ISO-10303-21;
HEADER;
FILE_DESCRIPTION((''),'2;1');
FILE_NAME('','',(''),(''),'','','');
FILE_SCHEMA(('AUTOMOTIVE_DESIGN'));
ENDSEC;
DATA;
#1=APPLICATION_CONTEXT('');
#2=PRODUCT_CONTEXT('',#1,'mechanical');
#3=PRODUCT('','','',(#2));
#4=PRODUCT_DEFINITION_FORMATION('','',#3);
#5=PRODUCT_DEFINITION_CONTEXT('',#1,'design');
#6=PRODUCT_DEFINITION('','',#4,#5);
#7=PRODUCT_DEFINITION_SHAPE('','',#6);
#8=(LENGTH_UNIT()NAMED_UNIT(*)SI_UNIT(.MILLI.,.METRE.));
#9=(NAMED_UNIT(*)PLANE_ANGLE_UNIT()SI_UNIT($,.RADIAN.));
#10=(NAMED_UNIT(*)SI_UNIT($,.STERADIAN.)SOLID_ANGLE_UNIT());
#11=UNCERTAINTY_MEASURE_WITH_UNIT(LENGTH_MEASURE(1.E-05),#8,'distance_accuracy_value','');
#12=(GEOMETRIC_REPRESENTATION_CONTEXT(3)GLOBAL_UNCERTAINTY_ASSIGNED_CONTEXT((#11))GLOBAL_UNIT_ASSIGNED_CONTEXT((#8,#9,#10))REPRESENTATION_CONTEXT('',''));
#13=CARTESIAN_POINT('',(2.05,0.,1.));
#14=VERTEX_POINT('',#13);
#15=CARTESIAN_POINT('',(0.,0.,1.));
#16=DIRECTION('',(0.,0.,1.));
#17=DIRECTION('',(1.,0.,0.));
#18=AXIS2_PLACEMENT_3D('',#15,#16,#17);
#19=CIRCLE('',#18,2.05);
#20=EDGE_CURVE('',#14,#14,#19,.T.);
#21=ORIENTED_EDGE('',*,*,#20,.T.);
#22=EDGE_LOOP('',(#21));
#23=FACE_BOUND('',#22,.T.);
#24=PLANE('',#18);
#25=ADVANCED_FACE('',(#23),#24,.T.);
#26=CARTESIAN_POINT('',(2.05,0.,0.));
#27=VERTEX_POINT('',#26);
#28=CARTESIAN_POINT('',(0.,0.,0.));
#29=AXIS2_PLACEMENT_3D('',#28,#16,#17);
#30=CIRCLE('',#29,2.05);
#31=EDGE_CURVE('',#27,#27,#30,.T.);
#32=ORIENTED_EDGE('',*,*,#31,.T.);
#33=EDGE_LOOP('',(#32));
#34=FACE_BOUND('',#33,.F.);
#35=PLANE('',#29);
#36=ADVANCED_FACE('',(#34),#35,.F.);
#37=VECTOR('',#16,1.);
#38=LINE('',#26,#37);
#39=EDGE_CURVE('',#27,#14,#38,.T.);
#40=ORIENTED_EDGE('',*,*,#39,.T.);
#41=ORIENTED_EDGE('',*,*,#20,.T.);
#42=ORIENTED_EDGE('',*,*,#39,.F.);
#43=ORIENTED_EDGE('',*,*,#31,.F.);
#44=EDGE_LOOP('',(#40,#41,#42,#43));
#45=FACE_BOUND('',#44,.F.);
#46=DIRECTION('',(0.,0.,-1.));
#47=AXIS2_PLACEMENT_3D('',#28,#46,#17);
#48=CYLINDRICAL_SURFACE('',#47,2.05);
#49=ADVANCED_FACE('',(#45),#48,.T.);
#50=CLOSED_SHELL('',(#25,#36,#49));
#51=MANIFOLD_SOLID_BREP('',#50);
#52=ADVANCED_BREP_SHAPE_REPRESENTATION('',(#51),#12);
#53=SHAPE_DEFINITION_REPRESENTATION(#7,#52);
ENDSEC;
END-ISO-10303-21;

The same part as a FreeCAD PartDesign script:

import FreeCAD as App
import Part
import Sketcher
from FreeCAD import Vector
Q = App.Units.Quantity

doc = App.newDocument("Part")
params = doc.addObject("Spreadsheet::Sheet", "Params")
for row, (alias, value) in enumerate([
    ("sketch1_diameter", "4.1 mm"),
    ("pad1_length", "1 mm"),
], start=1):
    params.set(f"A{row}", alias)
    params.set(f"B{row}", "=" + value)
    params.setAlias(f"B{row}", alias)

body = doc.addObject("PartDesign::Body", "Body")

# Sketch on XY plane
sketch1 = body.newObject("Sketcher::SketchObject", "Sketch")
sketch1.AttachmentSupport = (doc.getObject("XY_Plane"), [""])
sketch1.MapMode = "FlatFace"
sketch1.addGeometry(Part.Circle(Vector(0, 0, 0), Vector(0, 0, 1), 2), False)
sketch1.addConstraint(Sketcher.Constraint("Coincident", 0, 3, -1, 1))
sketch1.addConstraint(Sketcher.Constraint("Diameter", 0, Q("4.1 mm")))
sketch1.setExpression("Constraints[1]", "Params.sketch1_diameter")
pad1 = body.newObject("PartDesign::Pad", "Pad")
pad1.Profile = sketch1
pad1.setExpression("Length", "Params.pad1_length")

doc.recompute()
